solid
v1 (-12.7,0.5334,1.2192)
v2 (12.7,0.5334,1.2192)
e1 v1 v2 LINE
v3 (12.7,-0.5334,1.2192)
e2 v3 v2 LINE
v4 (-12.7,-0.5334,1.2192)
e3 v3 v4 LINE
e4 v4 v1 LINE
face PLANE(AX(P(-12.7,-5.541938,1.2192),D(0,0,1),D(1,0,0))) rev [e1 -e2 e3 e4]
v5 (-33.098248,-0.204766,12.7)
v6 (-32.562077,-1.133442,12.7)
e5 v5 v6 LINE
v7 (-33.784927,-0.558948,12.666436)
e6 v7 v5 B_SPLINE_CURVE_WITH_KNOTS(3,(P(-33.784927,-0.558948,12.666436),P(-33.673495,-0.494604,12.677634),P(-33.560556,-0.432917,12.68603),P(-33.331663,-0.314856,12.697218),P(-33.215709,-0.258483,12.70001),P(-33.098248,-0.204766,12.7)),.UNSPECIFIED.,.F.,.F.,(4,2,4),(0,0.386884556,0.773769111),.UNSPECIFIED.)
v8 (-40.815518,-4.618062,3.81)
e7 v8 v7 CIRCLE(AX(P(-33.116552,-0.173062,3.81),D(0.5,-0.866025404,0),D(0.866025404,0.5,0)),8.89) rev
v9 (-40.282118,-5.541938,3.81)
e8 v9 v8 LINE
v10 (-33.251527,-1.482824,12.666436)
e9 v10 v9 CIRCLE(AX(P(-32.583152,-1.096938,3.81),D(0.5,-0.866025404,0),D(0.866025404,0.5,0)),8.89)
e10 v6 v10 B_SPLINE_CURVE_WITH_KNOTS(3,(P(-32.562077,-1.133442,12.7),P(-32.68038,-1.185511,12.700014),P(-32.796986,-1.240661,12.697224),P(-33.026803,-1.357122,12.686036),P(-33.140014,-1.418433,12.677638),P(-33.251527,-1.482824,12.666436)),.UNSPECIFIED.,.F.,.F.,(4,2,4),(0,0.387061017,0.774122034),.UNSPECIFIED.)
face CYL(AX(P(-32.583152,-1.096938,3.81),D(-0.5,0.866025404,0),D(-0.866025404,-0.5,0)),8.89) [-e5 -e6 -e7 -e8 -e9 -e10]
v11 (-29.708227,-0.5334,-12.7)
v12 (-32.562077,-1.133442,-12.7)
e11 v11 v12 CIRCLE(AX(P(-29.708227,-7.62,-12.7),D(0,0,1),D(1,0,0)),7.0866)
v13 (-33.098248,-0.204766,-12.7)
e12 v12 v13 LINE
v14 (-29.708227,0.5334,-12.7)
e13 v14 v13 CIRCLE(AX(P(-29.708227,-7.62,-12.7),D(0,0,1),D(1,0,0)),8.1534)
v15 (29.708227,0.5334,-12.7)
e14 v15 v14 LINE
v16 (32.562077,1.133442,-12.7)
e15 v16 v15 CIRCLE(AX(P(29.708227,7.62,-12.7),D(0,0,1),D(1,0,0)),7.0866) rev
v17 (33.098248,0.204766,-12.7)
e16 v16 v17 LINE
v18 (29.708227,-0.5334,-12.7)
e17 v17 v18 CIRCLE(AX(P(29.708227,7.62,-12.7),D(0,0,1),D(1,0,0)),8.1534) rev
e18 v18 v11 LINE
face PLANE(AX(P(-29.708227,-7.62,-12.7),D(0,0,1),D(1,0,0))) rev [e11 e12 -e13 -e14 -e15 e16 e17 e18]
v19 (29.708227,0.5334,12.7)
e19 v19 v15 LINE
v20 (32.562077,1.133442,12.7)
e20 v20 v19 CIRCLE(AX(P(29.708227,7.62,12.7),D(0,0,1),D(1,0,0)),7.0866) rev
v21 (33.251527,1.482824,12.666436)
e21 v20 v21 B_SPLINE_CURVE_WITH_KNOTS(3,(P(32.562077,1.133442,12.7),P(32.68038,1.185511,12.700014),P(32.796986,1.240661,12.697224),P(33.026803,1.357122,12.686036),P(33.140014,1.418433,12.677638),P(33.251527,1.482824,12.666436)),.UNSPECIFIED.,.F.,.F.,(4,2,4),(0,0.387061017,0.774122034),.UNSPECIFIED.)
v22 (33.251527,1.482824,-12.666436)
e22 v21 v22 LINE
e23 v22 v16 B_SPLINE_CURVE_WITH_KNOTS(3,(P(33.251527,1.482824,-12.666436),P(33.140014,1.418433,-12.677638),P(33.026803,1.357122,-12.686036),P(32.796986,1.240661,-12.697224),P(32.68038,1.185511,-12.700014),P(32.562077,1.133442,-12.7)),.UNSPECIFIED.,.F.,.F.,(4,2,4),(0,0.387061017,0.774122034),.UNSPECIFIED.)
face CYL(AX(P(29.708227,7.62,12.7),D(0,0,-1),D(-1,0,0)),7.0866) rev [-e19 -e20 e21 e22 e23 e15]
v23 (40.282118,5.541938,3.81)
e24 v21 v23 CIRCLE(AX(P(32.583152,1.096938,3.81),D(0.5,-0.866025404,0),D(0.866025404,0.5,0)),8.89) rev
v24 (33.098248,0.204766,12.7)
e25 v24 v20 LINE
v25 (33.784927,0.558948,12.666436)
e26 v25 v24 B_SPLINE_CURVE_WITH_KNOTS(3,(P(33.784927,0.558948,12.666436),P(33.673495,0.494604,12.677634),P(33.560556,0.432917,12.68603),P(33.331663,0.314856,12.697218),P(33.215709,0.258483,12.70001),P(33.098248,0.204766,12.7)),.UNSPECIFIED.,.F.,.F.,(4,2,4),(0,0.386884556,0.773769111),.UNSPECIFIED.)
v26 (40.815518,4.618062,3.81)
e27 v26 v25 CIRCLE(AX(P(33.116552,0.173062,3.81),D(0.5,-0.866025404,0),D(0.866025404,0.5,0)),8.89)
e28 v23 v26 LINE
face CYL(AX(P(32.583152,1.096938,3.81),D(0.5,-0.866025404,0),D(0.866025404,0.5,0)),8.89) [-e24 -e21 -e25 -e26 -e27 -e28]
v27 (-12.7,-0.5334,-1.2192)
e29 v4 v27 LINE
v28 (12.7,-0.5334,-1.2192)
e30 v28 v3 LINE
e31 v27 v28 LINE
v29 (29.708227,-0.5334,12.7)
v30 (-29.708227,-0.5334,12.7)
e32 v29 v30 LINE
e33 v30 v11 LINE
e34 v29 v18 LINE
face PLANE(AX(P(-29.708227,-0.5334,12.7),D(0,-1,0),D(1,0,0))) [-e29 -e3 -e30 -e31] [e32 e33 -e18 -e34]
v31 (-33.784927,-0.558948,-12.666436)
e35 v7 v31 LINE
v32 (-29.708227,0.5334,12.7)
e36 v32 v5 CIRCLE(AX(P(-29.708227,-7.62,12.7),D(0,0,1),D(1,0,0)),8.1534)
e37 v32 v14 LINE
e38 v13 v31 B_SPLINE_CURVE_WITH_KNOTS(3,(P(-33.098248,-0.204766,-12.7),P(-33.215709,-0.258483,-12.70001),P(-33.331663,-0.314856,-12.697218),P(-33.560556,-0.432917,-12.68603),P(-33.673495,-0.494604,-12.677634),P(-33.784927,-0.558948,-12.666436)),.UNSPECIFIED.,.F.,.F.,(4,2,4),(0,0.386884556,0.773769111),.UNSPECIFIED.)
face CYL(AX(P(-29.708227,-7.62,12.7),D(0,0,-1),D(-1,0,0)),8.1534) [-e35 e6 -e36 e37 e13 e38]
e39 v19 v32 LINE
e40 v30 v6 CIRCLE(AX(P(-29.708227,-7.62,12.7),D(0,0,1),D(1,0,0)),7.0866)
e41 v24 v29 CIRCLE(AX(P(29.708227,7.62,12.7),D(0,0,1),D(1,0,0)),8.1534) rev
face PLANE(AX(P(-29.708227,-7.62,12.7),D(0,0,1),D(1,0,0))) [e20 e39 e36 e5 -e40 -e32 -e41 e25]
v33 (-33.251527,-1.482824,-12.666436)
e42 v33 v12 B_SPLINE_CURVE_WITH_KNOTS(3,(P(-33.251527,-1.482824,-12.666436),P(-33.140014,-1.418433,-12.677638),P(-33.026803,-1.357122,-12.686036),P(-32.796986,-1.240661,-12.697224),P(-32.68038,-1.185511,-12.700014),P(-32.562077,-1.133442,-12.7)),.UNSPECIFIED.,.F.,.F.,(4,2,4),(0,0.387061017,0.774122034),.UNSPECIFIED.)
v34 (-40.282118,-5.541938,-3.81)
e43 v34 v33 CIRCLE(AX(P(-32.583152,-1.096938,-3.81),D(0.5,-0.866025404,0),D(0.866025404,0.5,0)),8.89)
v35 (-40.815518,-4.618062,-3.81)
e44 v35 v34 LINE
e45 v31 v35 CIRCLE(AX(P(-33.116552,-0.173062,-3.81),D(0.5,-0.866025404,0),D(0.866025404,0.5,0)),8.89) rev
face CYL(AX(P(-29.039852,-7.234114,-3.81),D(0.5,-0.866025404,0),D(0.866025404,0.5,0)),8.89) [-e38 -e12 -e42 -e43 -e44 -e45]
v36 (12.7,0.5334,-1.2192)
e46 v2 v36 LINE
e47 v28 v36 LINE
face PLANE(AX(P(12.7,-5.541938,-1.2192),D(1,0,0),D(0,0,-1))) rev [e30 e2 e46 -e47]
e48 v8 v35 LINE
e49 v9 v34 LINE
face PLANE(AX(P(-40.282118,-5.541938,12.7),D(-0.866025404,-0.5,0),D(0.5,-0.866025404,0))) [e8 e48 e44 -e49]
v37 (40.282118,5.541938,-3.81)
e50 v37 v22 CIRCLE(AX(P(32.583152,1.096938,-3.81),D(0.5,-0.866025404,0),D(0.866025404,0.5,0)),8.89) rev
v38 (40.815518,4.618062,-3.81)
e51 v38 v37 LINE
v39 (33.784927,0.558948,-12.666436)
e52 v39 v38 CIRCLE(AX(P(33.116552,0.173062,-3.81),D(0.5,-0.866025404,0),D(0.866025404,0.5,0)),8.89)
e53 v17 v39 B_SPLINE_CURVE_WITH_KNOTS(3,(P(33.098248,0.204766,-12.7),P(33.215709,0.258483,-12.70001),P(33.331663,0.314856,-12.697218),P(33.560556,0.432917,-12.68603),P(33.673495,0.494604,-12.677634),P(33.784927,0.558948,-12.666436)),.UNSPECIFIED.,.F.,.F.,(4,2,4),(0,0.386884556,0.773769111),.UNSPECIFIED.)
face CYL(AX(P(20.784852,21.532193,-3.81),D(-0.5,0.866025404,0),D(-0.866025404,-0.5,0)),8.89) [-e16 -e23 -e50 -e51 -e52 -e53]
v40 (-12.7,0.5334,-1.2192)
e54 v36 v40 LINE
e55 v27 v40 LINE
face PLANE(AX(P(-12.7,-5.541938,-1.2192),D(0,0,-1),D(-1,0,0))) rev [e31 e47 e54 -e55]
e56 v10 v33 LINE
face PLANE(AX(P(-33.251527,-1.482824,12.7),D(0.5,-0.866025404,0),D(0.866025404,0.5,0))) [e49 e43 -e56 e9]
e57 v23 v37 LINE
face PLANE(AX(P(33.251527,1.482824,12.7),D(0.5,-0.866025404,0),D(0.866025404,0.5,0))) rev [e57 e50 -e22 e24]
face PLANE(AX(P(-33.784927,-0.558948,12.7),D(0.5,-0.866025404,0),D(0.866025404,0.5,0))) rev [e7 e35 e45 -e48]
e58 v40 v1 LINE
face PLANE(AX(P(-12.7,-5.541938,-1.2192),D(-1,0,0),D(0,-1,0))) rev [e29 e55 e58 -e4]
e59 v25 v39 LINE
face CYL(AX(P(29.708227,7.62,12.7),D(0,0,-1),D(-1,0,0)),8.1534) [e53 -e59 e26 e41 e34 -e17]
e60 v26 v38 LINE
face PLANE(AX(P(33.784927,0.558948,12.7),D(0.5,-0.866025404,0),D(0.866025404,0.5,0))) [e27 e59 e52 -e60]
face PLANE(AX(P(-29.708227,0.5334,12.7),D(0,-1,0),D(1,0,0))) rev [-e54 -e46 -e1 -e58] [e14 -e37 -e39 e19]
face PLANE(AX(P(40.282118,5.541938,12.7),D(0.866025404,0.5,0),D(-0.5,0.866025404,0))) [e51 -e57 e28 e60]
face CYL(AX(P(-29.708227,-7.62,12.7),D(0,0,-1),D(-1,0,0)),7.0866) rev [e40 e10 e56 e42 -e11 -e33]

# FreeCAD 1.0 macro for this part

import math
import FreeCAD as App
import Part
import Sketcher
from FreeCAD import Vector
Q = App.Units.Quantity


def edges_at(feature, points):
    """Names of the edges that pass closest to the given points."""
    edges = feature.Shape.Edges
    near = lambda p: min(range(len(edges)), key=lambda i: edges[i].distToShape(Part.Vertex(*p))[0])
    return sorted({f"Edge{near(p) + 1}" for p in points})


def add_polygon(sketch, points):
    """Adds a closed chain of lines whose ends are joined by coincident constraints."""
    first, n = sketch.GeometryCount, len(points)
    for a, b in zip(points, points[1:] + points[:1]):
        sketch.addGeometry(Part.LineSegment(App.Vector(*a, 0), App.Vector(*b, 0)), False)
    for i in range(n):
        sketch.addConstraint(Sketcher.Constraint("Coincident", first + i, 2, first + (i + 1) % n, 1))

doc = App.newDocument("Part")
params = doc.addObject("Spreadsheet::Sheet", "Params")
for row, (alias, value) in enumerate([
    ("sketch1_radius", "0.279 in"),
    ("sketch1_radius2", "0.321 in"),
    ("pad1_length", "1 in"),
    ("fillet_radius", "0.35 in"),
    ("sketch2_width", "1 in"),
    ("sketch2_height", "0.096 in"),
], start=1):
    params.set(f"A{row}", alias)
    params.set(f"B{row}", "=" + value)
    params.setAlias(f"B{row}", alias)

body = doc.addObject("PartDesign::Body", "Body")

sketch1 = body.newObject("Sketcher::SketchObject", "Sketch")
sketch1.AttachmentSupport = (doc.getObject("XY_Plane"), [""])
sketch1.MapMode = "FlatFace"
sketch1.addGeometry([
    Part.LineSegment(Vector(-40.3, -5.5, 0), Vector(-33.3, -1.5, 0)),
    Part.ArcOfCircle(Part.Circle(Vector(-29.7, -7.6, 0), Vector(0, 0, 1), 7.1), math.radians(90), math.radians(120)),
    Part.LineSegment(Vector(-29.7, -0.5, 0), Vector(29.7, -0.5, 0)),
    Part.ArcOfCircle(Part.Circle(Vector(29.7, 7.6, 0), Vector(0, 0, 1), 8.2), math.radians(-90), math.radians(-60)),
    Part.LineSegment(Vector(33.8, 0.6, 0), Vector(40.8, 4.6, 0)),
    Part.LineSegment(Vector(40.8, 4.6, 0), Vector(40.3, 5.5, 0)),
    Part.LineSegment(Vector(40.3, 5.5, 0), Vector(33.3, 1.5, 0)),
    Part.ArcOfCircle(Part.Circle(Vector(29.7, 7.6, 0), Vector(0, 0, 1), 7.1), math.radians(-90), math.radians(-60)),
    Part.LineSegment(Vector(29.7, 0.5, 0), Vector(-29.7, 0.5, 0)),
    Part.ArcOfCircle(Part.Circle(Vector(-29.7, -7.6, 0), Vector(0, 0, 1), 8.2), math.radians(90), math.radians(120)),
    Part.LineSegment(Vector(-33.8, -0.6, 0), Vector(-40.8, -4.6, 0)),
    Part.LineSegment(Vector(-40.8, -4.6, 0), Vector(-40.3, -5.5, 0)),
], False)
sketch1.addConstraint([
    Sketcher.Constraint("Tangent", 0, 2, 1, 2),
    Sketcher.Constraint("Tangent", 1, 1, 2, 1),
    Sketcher.Constraint("Tangent", 2, 2, 3, 1),
    Sketcher.Constraint("Tangent", 3, 2, 4, 1),
    Sketcher.Constraint("Coincident", 4, 2, 5, 1),
    Sketcher.Constraint("Coincident", 5, 2, 6, 1),
    Sketcher.Constraint("Tangent", 6, 2, 7, 2),
    Sketcher.Constraint("Tangent", 7, 1, 8, 1),
    Sketcher.Constraint("Tangent", 8, 2, 9, 1),
    Sketcher.Constraint("Tangent", 9, 2, 10, 1),
    Sketcher.Constraint("Coincident", 10, 2, 11, 1),
    Sketcher.Constraint("Coincident", 11, 2, 0, 1),
    Sketcher.Constraint("Horizontal", 2),
    Sketcher.Constraint("Horizontal", 8),
    Sketcher.Constraint("Coincident", 7, 3, 3, 3),
    Sketcher.Constraint("Coincident", 9, 3, 1, 3),
    Sketcher.Constraint("Equal", 1, 7),
    Sketcher.Constraint("Symmetric", 1, 3, 3, 3, -1, 1),
    Sketcher.Constraint("Symmetric", 4, 2, 10, 2, -1, 1),
    Sketcher.Constraint("Symmetric", 5, 2, 11, 2, -1, 1),
    Sketcher.Constraint("Parallel", 0, 4),
    Sketcher.Constraint("Perpendicular", 4, 5),
    Sketcher.Constraint("Angle", 0, Q("30 deg")),
    Sketcher.Constraint("Radius", 1, Q("0.279 in")),
    Sketcher.Constraint("Radius", 3, Q("0.321 in")),
    Sketcher.Constraint("DistanceX", 2, 1, 2, 2, Q("59.416454 mm")),
    Sketcher.Constraint("DistanceX", -1, 1, 4, 2, Q("40.815518 mm")),
])
sketch1.setExpression("Constraints[23]", "Params.sketch1_radius")
sketch1.setExpression("Constraints[24]", "Params.sketch1_radius2")
pad1 = body.newObject("PartDesign::Pad", "Pad")
pad1.Profile = sketch1
pad1.setExpression("Length", "Params.pad1_length")
pad1.Midplane = True
doc.recompute()

fillet = body.newObject("PartDesign::Fillet", "Fillet")
fillet.Base = (pad1, edges_at(pad1, [
    (40.549, 5.08, -12.7),
    (40.549, 5.08, 12.7),
    (-40.549, -5.08, -12.7),
    (-40.549, -5.08, 12.7),
]))
fillet.setExpression("Radius", "Params.fillet_radius")

sketch2 = body.newObject("Sketcher::SketchObject", "Sketch001")
sketch2.AttachmentSupport = (doc.getObject("XZ_Plane"), [""])
sketch2.MapMode = "FlatFace"
sketch2.AttachmentOffset = App.Placement(Vector(0, 0, -0.021 * 25.4), App.Rotation())
add_polygon(sketch2, [(-12.7, -1.2), (-12.7, 1.2), (12.7, 1.2), (12.7, -1.2)])
sketch2.addConstraint([
    Sketcher.Constraint("Vertical", 0),
    Sketcher.Constraint("Horizontal", 1),
    Sketcher.Constraint("Vertical", 2),
    Sketcher.Constraint("Horizontal", 3),
    Sketcher.Constraint("Symmetric", 0, 2, 2, 2, -1, 1),
    Sketcher.Constraint("DistanceX", 1, 1, 1, 2, Q("1 in")),
    Sketcher.Constraint("DistanceY", 0, 1, 0, 2, Q("0.096 in")),
])
sketch2.setExpression("Constraints[9]", "Params.sketch2_width")
sketch2.setExpression("Constraints[10]", "Params.sketch2_height")
pocket1 = body.newObject("PartDesign::Pocket", "Pocket")
pocket1.Profile = sketch2
pocket1.Type = "ThroughAll"
pocket1.Reversed = True

doc.recompute()
